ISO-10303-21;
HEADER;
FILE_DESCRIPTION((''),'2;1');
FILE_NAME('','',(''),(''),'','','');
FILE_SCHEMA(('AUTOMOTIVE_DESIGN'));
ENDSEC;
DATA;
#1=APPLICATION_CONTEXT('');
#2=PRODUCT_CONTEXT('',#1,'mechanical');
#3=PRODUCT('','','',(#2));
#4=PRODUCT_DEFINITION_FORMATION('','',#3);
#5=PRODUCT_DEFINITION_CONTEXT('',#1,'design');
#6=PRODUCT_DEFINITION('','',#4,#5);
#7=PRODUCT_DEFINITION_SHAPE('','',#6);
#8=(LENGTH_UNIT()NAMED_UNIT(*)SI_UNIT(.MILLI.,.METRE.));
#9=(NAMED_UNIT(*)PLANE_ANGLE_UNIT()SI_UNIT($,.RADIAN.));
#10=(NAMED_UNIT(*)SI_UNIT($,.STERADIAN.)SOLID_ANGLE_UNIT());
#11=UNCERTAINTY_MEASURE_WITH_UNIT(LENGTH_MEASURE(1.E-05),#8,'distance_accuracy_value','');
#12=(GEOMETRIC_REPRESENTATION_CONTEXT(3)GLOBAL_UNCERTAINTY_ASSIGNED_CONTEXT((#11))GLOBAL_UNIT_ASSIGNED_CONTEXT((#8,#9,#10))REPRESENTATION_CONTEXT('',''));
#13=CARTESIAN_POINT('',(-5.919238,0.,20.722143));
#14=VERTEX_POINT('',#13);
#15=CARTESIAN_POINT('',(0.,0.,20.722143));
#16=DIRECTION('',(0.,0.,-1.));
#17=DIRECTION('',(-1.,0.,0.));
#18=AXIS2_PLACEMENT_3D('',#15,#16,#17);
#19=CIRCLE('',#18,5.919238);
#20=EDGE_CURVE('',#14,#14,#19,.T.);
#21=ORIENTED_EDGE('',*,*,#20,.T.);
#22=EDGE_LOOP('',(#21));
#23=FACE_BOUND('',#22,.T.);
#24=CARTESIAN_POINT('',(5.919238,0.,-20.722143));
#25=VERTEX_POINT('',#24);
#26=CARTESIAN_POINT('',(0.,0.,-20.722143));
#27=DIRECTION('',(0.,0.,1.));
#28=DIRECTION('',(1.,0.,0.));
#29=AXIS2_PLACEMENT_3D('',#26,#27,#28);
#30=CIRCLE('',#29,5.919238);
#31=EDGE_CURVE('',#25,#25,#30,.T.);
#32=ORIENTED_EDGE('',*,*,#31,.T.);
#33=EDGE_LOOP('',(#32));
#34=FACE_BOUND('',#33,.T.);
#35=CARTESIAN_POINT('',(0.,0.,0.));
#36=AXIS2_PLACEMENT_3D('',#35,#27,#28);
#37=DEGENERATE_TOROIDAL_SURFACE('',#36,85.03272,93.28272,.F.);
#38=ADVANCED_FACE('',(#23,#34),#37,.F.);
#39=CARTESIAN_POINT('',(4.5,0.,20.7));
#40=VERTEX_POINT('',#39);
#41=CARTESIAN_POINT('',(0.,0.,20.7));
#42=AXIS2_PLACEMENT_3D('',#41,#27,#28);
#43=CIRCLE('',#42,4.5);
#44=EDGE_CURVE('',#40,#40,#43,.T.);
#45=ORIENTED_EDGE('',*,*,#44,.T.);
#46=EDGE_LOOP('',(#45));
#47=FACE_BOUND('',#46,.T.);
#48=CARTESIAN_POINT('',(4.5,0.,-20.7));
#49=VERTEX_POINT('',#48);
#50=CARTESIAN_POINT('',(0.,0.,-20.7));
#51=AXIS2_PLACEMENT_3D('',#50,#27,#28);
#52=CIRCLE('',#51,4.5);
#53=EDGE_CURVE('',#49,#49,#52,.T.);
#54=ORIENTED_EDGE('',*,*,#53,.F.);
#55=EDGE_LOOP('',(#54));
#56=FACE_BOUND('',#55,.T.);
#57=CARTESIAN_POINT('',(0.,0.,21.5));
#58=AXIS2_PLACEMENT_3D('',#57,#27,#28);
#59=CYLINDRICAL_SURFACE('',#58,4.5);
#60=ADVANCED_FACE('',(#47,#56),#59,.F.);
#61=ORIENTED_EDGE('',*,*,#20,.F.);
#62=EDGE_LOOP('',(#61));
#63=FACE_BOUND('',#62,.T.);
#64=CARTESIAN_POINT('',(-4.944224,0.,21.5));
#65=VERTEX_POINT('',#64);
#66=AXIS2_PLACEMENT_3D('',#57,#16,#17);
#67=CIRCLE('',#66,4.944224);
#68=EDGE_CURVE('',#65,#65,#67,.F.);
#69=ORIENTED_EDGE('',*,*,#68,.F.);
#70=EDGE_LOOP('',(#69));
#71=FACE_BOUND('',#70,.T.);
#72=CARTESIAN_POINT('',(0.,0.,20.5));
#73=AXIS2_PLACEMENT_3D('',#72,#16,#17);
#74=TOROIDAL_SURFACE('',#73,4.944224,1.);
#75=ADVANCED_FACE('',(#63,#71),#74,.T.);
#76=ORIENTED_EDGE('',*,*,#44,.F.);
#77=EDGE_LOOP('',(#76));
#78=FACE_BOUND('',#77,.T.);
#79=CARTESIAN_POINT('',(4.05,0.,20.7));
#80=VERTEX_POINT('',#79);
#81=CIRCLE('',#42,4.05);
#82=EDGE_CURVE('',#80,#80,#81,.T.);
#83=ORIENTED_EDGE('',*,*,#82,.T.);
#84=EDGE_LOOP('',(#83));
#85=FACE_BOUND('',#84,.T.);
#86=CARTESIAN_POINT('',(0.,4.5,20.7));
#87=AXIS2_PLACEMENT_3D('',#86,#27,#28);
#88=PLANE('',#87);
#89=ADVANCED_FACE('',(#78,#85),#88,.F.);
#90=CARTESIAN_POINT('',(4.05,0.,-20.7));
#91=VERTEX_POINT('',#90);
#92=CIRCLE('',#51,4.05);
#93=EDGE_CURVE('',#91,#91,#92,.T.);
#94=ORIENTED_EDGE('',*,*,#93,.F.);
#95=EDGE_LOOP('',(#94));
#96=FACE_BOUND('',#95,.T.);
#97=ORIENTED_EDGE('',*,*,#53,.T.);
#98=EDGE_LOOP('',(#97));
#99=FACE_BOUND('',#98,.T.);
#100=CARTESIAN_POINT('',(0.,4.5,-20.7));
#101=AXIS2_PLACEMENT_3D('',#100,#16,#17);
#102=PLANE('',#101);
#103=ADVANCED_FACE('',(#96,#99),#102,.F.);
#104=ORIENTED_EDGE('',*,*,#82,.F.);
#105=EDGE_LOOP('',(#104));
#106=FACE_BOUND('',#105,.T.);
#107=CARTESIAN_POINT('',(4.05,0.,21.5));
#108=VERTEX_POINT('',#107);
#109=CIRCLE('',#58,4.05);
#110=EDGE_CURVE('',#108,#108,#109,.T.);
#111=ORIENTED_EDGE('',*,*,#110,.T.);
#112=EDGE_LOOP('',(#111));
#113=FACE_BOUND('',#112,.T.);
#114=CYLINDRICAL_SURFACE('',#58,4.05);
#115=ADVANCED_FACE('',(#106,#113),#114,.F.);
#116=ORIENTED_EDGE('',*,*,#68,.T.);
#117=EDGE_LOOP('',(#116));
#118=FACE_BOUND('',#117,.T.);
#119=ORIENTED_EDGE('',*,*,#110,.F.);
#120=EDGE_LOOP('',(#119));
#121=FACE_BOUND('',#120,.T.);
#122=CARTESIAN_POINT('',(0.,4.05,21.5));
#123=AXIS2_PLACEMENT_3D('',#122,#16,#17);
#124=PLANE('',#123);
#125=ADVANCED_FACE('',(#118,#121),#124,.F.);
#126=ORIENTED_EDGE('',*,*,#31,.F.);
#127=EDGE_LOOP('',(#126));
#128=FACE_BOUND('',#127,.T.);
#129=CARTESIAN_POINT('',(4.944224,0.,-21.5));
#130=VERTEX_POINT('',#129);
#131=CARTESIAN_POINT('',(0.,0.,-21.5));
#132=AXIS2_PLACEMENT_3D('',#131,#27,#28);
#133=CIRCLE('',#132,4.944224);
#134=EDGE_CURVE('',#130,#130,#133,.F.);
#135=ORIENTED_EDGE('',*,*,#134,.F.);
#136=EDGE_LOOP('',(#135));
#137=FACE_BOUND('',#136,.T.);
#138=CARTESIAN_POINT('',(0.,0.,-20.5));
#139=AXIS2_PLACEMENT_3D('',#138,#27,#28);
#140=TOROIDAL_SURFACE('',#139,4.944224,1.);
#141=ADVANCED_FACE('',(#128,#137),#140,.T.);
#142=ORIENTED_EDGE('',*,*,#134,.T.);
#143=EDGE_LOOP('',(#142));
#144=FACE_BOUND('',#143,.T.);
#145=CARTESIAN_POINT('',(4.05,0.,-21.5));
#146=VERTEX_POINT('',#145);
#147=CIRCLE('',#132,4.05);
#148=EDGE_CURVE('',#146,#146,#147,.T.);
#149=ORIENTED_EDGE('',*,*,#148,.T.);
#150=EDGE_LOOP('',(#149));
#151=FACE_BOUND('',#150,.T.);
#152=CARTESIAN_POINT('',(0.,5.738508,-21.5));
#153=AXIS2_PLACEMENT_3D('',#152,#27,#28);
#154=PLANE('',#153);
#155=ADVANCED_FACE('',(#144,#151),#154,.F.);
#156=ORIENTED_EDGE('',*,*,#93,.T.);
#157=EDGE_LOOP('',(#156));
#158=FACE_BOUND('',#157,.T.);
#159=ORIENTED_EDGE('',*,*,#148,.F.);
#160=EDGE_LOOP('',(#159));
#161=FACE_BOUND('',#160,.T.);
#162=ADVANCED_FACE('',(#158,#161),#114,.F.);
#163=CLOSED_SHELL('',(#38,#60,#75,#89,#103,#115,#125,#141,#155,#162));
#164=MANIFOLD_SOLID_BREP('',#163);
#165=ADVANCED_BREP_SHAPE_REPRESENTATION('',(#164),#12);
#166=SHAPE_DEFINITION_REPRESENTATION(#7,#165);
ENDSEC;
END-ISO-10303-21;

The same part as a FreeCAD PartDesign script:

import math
import FreeCAD as App
import Part
import Sketcher

V = App.Vector
Q = App.Units.Quantity


def edges_at(feature, points):
    """Names of the edges that pass closest to the given points."""
    edges = feature.Shape.Edges
    near = lambda p: min(range(len(edges)), key=lambda i: edges[i].distToShape(Part.Vertex(*p))[0])
    return sorted({f"Edge{near(p) + 1}" for p in points})

doc = App.newDocument("Part")
body = doc.addObject("PartDesign::Body", "Body")

# Sketch on YZ plane
sketch1 = body.newObject("Sketcher::SketchObject", "Sketch")
sketch1.AttachmentSupport = (doc.getObject("YZ_Plane"), [""])
sketch1.MapMode = "FlatFace"
sketch1.addGeometry([
    Part.LineSegment(V(4.05, -21.5, 0), V(5.738508, -21.5, 0)),  # 0
    Part.ArcOfCircle(Part.Circle(V(-85.03272, 0, 0), V(0, 0, 1), 93.28272), math.radians(-13.325458), math.radians(13.325458)),  # 1
    Part.LineSegment(V(5.738508, 21.5, 0), V(4.05, 21.5, 0)),  # 2
    Part.LineSegment(V(4.05, 21.5, 0), V(4.05, 20.7, 0)),  # 3
    Part.LineSegment(V(4.05, 20.7, 0), V(4.5, 20.7, 0)),  # 4
    Part.LineSegment(V(4.5, 20.7, 0), V(4.5, -20.7, 0)),  # 5
    Part.LineSegment(V(4.5, -20.7, 0), V(4.05, -20.7, 0)),  # 6
    Part.LineSegment(V(4.05, -20.7, 0), V(4.05, -21.5, 0)),  # 7
], False)
sketch1.addConstraint([
    Sketcher.Constraint("Coincident", 0, 2, 1, 1),
    Sketcher.Constraint("Coincident", 1, 2, 2, 1),
    Sketcher.Constraint("Coincident", 2, 2, 3, 1),
    Sketcher.Constraint("Coincident", 3, 2, 4, 1),
    Sketcher.Constraint("Coincident", 4, 2, 5, 1),
    Sketcher.Constraint("Coincident", 5, 2, 6, 1),
    Sketcher.Constraint("Coincident", 6, 2, 7, 1),
    Sketcher.Constraint("Coincident", 7, 2, 0, 1),
    Sketcher.Constraint("Horizontal", 0),
    Sketcher.Constraint("Horizontal", 2),
    Sketcher.Constraint("Vertical", 3),
    Sketcher.Constraint("Horizontal", 4),
    Sketcher.Constraint("Vertical", 5),
    Sketcher.Constraint("Horizontal", 6),
    Sketcher.Constraint("Vertical", 7),
    Sketcher.Constraint("Symmetric", 0, 2, 1, 2, -1),
    Sketcher.Constraint("Symmetric", 3, 2, 6, 2, -1),
    Sketcher.Constraint("DistanceY", 3, 2, 3, 1, Q("0.8 mm")),
    Sketcher.Constraint("DistanceY", 5, 2, 5, 1, Q("41.4 mm")),
    Sketcher.Constraint("DistanceX", 4, 1, 4, 2, Q("0.45 mm")),
    Sketcher.Constraint("DistanceX", -1, 1, 4, 2, Q("4.5 mm")),
    Sketcher.Constraint("Radius", 1, Q("93.28272 mm")),
    Sketcher.Constraint("DistanceX", 0, 1, 0, 2, Q("1.688508 mm")),
])
revolution = body.newObject("PartDesign::Revolution", "Revolution")
revolution.Profile = sketch1
revolution.ReferenceAxis = (sketch1, ["V_Axis"])
revolution.Angle = 360
doc.recompute()

fillet = body.newObject("PartDesign::Fillet", "Fillet")
fillet.Base = (revolution, edges_at(revolution, [(-5.739, 0, -21.5), (-5.739, 0, 21.5)]))
fillet.Radius = 1

doc.recompute()
